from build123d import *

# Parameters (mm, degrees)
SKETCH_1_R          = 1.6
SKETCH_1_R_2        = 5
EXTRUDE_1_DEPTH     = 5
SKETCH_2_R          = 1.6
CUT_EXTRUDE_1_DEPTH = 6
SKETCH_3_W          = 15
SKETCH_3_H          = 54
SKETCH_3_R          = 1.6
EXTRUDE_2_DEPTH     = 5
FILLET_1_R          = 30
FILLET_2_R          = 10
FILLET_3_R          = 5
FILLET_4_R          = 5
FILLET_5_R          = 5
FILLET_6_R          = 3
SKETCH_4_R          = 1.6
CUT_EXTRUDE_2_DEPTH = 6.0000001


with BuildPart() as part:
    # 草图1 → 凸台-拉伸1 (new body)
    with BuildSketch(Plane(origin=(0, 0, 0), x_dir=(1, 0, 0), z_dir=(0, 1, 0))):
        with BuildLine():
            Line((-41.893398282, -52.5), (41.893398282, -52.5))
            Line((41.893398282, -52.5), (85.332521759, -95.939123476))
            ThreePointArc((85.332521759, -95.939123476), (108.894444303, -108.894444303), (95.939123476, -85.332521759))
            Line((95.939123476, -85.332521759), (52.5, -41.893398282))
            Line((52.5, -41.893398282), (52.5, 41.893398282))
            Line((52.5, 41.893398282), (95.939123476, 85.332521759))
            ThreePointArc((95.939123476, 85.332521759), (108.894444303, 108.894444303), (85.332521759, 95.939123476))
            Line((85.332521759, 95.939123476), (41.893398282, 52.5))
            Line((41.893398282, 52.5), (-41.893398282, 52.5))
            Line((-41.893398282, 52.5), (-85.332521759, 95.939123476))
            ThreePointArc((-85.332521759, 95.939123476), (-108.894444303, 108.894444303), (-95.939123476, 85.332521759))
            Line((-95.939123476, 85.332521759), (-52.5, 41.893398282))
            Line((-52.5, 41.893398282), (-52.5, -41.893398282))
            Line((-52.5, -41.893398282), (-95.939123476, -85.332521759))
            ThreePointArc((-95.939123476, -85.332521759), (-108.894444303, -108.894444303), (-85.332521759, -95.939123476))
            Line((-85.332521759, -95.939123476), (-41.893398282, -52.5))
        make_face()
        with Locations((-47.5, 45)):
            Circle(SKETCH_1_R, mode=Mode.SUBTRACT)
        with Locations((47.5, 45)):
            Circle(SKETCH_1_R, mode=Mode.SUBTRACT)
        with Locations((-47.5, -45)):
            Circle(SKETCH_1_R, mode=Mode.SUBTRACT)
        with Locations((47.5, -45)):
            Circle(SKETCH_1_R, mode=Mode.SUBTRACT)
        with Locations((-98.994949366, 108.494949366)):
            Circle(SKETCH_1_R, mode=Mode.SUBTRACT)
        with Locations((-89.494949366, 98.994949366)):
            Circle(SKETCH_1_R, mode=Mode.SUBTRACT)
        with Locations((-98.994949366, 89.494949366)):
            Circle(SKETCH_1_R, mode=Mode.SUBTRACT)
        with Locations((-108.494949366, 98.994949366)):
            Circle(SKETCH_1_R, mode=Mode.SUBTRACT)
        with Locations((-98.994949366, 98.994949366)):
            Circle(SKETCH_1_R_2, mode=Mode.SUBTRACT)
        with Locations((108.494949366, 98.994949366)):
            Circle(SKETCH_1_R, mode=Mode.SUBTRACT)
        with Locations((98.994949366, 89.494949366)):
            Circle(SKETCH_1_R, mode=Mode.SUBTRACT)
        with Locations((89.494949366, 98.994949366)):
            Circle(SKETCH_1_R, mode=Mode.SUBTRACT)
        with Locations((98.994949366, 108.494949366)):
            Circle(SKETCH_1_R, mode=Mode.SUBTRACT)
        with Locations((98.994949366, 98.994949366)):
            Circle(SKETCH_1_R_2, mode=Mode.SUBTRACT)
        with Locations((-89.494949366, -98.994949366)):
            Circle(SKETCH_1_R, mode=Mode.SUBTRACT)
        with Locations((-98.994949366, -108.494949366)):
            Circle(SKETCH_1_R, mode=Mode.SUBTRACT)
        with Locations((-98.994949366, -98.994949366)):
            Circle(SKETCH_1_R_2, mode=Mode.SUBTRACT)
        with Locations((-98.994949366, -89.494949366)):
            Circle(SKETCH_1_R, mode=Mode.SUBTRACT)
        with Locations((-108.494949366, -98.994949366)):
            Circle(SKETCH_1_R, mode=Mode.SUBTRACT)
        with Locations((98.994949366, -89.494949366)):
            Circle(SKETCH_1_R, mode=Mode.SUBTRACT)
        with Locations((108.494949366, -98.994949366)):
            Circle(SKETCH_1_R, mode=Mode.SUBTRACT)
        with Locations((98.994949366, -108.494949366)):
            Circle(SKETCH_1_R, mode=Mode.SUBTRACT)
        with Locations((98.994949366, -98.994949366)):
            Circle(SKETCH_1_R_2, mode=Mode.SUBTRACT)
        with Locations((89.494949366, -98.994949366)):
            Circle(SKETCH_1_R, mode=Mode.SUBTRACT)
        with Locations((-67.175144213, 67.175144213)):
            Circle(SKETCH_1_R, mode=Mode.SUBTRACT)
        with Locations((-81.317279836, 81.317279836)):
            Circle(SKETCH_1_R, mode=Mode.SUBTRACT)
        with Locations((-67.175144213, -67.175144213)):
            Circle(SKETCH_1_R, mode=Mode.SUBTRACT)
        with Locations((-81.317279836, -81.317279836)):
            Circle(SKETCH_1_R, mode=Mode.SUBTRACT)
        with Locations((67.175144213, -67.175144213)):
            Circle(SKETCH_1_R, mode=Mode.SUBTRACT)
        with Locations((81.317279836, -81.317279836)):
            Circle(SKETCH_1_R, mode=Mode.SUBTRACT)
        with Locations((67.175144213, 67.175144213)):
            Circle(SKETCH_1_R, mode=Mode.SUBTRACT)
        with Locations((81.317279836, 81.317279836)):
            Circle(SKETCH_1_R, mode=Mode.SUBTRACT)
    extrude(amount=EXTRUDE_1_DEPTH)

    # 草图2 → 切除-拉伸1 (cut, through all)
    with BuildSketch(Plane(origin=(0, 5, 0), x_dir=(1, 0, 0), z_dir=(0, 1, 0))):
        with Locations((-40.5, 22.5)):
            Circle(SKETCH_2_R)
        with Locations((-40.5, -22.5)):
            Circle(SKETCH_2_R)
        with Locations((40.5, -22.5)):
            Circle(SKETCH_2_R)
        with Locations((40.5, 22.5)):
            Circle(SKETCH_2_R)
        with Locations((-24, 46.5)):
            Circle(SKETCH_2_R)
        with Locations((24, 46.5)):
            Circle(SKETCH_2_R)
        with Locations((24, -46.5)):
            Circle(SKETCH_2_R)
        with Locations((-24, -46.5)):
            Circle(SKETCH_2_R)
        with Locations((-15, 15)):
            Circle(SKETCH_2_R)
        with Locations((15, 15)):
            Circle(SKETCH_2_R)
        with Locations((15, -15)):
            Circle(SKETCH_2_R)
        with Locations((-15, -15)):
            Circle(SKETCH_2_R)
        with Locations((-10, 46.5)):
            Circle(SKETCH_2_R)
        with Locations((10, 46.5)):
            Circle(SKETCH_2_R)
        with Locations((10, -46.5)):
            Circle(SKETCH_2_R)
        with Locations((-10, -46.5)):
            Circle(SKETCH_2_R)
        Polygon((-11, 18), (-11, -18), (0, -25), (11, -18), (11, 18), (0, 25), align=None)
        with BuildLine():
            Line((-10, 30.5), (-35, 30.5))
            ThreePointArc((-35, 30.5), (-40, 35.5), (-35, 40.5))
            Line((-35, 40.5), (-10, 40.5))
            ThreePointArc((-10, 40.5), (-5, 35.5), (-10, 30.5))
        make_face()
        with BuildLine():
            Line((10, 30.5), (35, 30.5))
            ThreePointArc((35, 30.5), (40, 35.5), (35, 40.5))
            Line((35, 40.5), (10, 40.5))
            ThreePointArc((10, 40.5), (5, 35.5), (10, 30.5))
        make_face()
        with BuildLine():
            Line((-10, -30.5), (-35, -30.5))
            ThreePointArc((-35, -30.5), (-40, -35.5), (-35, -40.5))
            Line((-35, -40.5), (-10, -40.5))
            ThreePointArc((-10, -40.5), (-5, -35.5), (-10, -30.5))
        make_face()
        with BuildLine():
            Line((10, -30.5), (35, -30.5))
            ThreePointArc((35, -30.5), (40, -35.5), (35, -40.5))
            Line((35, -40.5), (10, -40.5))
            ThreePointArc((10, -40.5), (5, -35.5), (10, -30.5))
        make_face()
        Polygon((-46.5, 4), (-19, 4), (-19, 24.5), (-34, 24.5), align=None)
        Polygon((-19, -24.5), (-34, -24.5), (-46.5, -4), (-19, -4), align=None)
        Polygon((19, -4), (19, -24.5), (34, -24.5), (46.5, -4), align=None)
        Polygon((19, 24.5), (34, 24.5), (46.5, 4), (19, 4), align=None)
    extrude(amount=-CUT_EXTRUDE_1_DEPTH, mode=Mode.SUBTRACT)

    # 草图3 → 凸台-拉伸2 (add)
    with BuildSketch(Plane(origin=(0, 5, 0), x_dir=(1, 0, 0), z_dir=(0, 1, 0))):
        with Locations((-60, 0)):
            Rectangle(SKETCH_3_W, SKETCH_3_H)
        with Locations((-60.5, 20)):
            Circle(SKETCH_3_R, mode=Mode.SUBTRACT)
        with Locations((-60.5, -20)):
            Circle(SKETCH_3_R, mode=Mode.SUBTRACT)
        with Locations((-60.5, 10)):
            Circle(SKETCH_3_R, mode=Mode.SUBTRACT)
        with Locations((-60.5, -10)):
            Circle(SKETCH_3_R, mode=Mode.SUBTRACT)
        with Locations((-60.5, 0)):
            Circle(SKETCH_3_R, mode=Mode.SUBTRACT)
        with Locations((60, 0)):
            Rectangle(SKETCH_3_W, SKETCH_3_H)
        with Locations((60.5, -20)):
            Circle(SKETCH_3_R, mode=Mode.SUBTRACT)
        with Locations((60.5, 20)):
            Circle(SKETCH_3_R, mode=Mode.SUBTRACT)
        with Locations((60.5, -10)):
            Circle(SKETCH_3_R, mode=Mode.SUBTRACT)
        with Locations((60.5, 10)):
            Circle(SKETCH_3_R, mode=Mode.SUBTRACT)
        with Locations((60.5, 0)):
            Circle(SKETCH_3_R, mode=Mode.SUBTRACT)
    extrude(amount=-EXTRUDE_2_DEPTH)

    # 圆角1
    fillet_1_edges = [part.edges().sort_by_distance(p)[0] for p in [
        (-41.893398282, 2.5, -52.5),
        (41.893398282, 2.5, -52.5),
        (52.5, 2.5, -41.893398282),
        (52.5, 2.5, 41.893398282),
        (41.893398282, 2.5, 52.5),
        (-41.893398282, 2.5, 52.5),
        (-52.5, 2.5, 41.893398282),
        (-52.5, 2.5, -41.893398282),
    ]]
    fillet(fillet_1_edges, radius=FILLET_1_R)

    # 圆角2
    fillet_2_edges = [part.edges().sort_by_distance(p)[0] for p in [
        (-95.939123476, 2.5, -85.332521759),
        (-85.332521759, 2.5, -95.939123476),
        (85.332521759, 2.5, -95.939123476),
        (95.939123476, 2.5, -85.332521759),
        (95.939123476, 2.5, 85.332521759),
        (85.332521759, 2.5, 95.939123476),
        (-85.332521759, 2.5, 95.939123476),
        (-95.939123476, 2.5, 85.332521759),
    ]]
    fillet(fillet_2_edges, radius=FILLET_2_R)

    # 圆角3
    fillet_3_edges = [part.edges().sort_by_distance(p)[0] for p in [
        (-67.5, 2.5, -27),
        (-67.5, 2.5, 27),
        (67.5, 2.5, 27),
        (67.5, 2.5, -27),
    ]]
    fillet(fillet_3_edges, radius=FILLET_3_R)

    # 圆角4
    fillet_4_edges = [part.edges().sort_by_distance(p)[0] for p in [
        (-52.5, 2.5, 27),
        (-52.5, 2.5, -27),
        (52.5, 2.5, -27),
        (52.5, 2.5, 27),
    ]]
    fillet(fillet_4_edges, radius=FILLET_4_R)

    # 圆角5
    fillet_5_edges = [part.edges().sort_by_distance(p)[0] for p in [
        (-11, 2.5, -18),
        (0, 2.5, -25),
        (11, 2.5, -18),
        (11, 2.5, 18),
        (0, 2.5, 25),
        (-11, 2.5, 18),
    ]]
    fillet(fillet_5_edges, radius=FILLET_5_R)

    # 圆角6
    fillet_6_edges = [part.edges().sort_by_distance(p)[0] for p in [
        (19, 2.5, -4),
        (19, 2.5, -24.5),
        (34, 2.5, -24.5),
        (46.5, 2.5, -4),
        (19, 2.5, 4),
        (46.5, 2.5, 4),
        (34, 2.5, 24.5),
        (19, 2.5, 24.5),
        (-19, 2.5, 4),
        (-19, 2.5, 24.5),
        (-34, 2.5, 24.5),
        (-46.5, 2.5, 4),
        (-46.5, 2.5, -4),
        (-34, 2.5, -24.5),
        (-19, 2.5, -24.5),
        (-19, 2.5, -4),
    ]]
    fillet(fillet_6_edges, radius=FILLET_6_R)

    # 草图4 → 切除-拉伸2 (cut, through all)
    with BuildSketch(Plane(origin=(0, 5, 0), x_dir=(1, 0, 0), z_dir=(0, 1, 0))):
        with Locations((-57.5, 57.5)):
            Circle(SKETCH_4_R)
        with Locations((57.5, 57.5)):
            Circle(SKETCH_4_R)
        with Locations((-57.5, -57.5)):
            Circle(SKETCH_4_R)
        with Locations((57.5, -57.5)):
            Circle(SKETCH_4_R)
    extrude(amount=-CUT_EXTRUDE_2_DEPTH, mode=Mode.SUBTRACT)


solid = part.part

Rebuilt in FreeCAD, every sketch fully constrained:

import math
import FreeCAD as App
import Part
import Sketcher
Q = App.Units.Quantity


def edges_at(feature, points):
    """Names of the edges that pass closest to the given points."""
    edges = feature.Shape.Edges
    near = lambda p: min(range(len(edges)), key=lambda i: edges[i].distToShape(Part.Vertex(*p))[0])
    return sorted({f"Edge{near(p) + 1}" for p in points})


def add_polygon(sketch, points):
    """Adds a closed chain of lines whose ends are joined by coincident constraints."""
    first, n = sketch.GeometryCount, len(points)
    for a, b in zip(points, points[1:] + points[:1]):
        sketch.addGeometry(Part.LineSegment(App.Vector(*a, 0), App.Vector(*b, 0)), False)
    for i in range(n):
        sketch.addConstraint(Sketcher.Constraint("Coincident", first + i, 2, first + (i + 1) % n, 1))

doc = App.newDocument("Part")
params = doc.addObject("Spreadsheet::Sheet", "Params")
for row, (alias, value) in enumerate([
    ("sketch1_diameter", "10 mm"),
    ("sketch1_radius", "14 mm"),
    ("sketch1_diameter2", "3.2 mm"),
    ("pad1_length", "5 mm"),
    ("sketch2_radius", "5 mm"),
    ("sketch2_diameter", "3.2 mm"),
    ("sketch2_width", "25 mm"),
    ("sketch2_width2", "15 mm"),
    ("sketch2_height", "36 mm"),
    ("sketch3_diameter", "3.2 mm"),
    ("sketch3_width", "15 mm"),
    ("sketch3_height", "54 mm"),
    ("pad2_length", "5 mm"),
    ("fillet_radius", "30 mm"),
    ("fillet2_radius", "10 mm"),
    ("fillet3_radius", "5 mm"),
    ("fillet4_radius", "5 mm"),
    ("fillet5_radius", "5 mm"),
    ("fillet6_radius", "3 mm"),
    ("sketch4_diameter", "3.2 mm"),
], start=1):
    params.set(f"A{row}", alias)
    params.set(f"B{row}", "=" + value)
    params.setAlias(f"B{row}", alias)

body = doc.addObject("PartDesign::Body", "Body")

# Sketch on XZ plane
sketch1 = body.newObject("Sketcher::SketchObject", "Sketch")
sketch1.AttachmentSupport = (doc.getObject("XZ_Plane"), [""])
sketch1.MapMode = "FlatFace"
sketch1.addGeometry([
    Part.LineSegment(App.Vector(-41.9, 52.5, 0), App.Vector(41.9, 52.5, 0)),  # 0
    Part.LineSegment(App.Vector(41.9, 52.5, 0), App.Vector(85.3, 95.9, 0)),  # 1
    Part.ArcOfCircle(Part.Circle(App.Vector(99, 99, 0), App.Vector(0, 0, 1), 14), math.radians(-103), math.radians(193)),  # 2
    Part.LineSegment(App.Vector(95.9, 85.3, 0), App.Vector(52.5, 41.9, 0)),  # 3
    Part.LineSegment(App.Vector(52.5, 41.9, 0), App.Vector(52.5, -41.9, 0)),  # 4
    Part.LineSegment(App.Vector(52.5, -41.9, 0), App.Vector(95.9, -85.3, 0)),  # 5
    Part.ArcOfCircle(Part.Circle(App.Vector(99, -99, 0), App.Vector(0, 0, 1), 14), math.radians(167), math.radians(463)),  # 6
    Part.LineSegment(App.Vector(85.3, -95.9, 0), App.Vector(41.9, -52.5, 0)),  # 7
    Part.LineSegment(App.Vector(41.9, -52.5, 0), App.Vector(-41.9, -52.5, 0)),  # 8
    Part.LineSegment(App.Vector(-41.9, -52.5, 0), App.Vector(-85.3, -95.9, 0)),  # 9
    Part.ArcOfCircle(Part.Circle(App.Vector(-99, -99, 0), App.Vector(0, 0, 1), 14), math.radians(77), math.radians(373)),  # 10
    Part.LineSegment(App.Vector(-95.9, -85.3, 0), App.Vector(-52.5, -41.9, 0)),  # 11
    Part.LineSegment(App.Vector(-52.5, -41.9, 0), App.Vector(-52.5, 41.9, 0)),  # 12
    Part.LineSegment(App.Vector(-52.5, 41.9, 0), App.Vector(-95.9, 85.3, 0)),  # 13
    Part.ArcOfCircle(Part.Circle(App.Vector(-99, 99, 0), App.Vector(0, 0, 1), 14), math.radians(-13), math.radians(283)),  # 14
    Part.LineSegment(App.Vector(-85.3, 95.9, 0), App.Vector(-41.9, 52.5, 0)),  # 15
    Part.Circle(App.Vector(-99, 108.5, 0), App.Vector(0, 0, 1), 1.6),  # 16
    Part.Circle(App.Vector(-108.5, 99, 0), App.Vector(0, 0, 1), 1.6),  # 17
    Part.Circle(App.Vector(-99, 99, 0), App.Vector(0, 0, 1), 5),  # 18
    Part.Circle(App.Vector(-89.5, 99, 0), App.Vector(0, 0, 1), 1.6),  # 19
    Part.Circle(App.Vector(-99, 89.5, 0), App.Vector(0, 0, 1), 1.6),  # 20
    Part.Circle(App.Vector(-81.3, 81.3, 0), App.Vector(0, 0, 1), 1.6),  # 21
    Part.Circle(App.Vector(-67.2, 67.2, 0), App.Vector(0, 0, 1), 1.6),  # 22
    Part.Circle(App.Vector(-47.5, 45, 0), App.Vector(0, 0, 1), 1.6),  # 23
    Part.Circle(App.Vector(89.5, 99, 0), App.Vector(0, 0, 1), 1.6),  # 24
    Part.Circle(App.Vector(99, 108.5, 0), App.Vector(0, 0, 1), 1.6),  # 25
    Part.Circle(App.Vector(99, 99, 0), App.Vector(0, 0, 1), 5),  # 26
    Part.Circle(App.Vector(108.5, 99, 0), App.Vector(0, 0, 1), 1.6),  # 27
    Part.Circle(App.Vector(99, 89.5, 0), App.Vector(0, 0, 1), 1.6),  # 28
    Part.Circle(App.Vector(81.3, 81.3, 0), App.Vector(0, 0, 1), 1.6),  # 29
    Part.Circle(App.Vector(67.2, 67.2, 0), App.Vector(0, 0, 1), 1.6),  # 30
    Part.Circle(App.Vector(47.5, 45, 0), App.Vector(0, 0, 1), 1.6),  # 31
    Part.Circle(App.Vector(-47.5, -45, 0), App.Vector(0, 0, 1), 1.6),  # 32
    Part.Circle(App.Vector(-67.2, -67.2, 0), App.Vector(0, 0, 1), 1.6),  # 33
    Part.Circle(App.Vector(-81.3, -81.3, 0), App.Vector(0, 0, 1), 1.6),  # 34
    Part.Circle(App.Vector(-99, -89.5, 0), App.Vector(0, 0, 1), 1.6),  # 35
    Part.Circle(App.Vector(-108.5, -99, 0), App.Vector(0, 0, 1), 1.6),  # 36
    Part.Circle(App.Vector(-99, -99, 0), App.Vector(0, 0, 1), 5),  # 37
    Part.Circle(App.Vector(-99, -108.5, 0), App.Vector(0, 0, 1), 1.6),  # 38
    Part.Circle(App.Vector(-89.5, -99, 0), App.Vector(0, 0, 1), 1.6),  # 39
    Part.Circle(App.Vector(47.5, -45, 0), App.Vector(0, 0, 1), 1.6),  # 40
    Part.Circle(App.Vector(67.2, -67.2, 0), App.Vector(0, 0, 1), 1.6),  # 41
    Part.Circle(App.Vector(81.3, -81.3, 0), App.Vector(0, 0, 1), 1.6),  # 42
    Part.Circle(App.Vector(99, -89.5, 0), App.Vector(0, 0, 1), 1.6),  # 43
    Part.Circle(App.Vector(89.5, -99, 0), App.Vector(0, 0, 1), 1.6),  # 44
    Part.Circle(App.Vector(99, -99, 0), App.Vector(0, 0, 1), 5),  # 45
    Part.Circle(App.Vector(108.5, -99, 0), App.Vector(0, 0, 1), 1.6),  # 46
    Part.Circle(App.Vector(99, -108.5, 0), App.Vector(0, 0, 1), 1.6),  # 47
], False)
sketch1.addConstraint([
    Sketcher.Constraint("Coincident", 0, 2, 1, 1),
    Sketcher.Constraint("Coincident", 1, 2, 2, 2),
    Sketcher.Constraint("Coincident", 2, 1, 3, 1),
    Sketcher.Constraint("Coincident", 3, 2, 4, 1),
    Sketcher.Constraint("Coincident", 4, 2, 5, 1),
    Sketcher.Constraint("Coincident", 5, 2, 6, 2),
    Sketcher.Constraint("Coincident", 6, 1, 7, 1),
    Sketcher.Constraint("Coincident", 7, 2, 8, 1),
    Sketcher.Constraint("Coincident", 8, 2, 9, 1),
    Sketcher.Constraint("Coincident", 9, 2, 10, 2),
    Sketcher.Constraint("Coincident", 10, 1, 11, 1),
    Sketcher.Constraint("Coincident", 11, 2, 12, 1),
    Sketcher.Constraint("Coincident", 12, 2, 13, 1),
    Sketcher.Constraint("Coincident", 13, 2, 14, 2),
    Sketcher.Constraint("Coincident", 14, 1, 15, 1),
    Sketcher.Constraint("Coincident", 15, 2, 0, 1),
    Sketcher.Constraint("Horizontal", 0),
    Sketcher.Constraint("Vertical", 4),
    Sketcher.Constraint("Horizontal", 8),
    Sketcher.Constraint("Vertical", 12),
    Sketcher.Constraint("Coincident", 18, 3, 14, 3),
    Sketcher.Constraint("Coincident", 26, 3, 2, 3),
    Sketcher.Constraint("Coincident", 37, 3, 10, 3),
    Sketcher.Constraint("Coincident", 45, 3, 6, 3),
    Sketcher.Constraint("Equal", 2, 6),
    Sketcher.Constraint("Equal", 6, 10),
    Sketcher.Constraint("Equal", 10, 14),
    Sketcher.Constraint("Equal", 16, 17),
    Sketcher.Constraint("Equal", 17, 19),
    Sketcher.Constraint("Equal", 19, 20),
    Sketcher.Constraint("Equal", 20, 21),
    Sketcher.Constraint("Equal", 21, 22),
    Sketcher.Constraint("Equal", 22, 23),
    Sketcher.Constraint("Equal", 23, 24),
    Sketcher.Constraint("Equal", 24, 25),
    Sketcher.Constraint("Equal", 18, 26),
    Sketcher.Constraint("Equal", 25, 27),
    Sketcher.Constraint("Equal", 27, 28),
    Sketcher.Constraint("Equal", 28, 29),
    Sketcher.Constraint("Equal", 29, 30),
    Sketcher.Constraint("Equal", 30, 31),
    Sketcher.Constraint("Equal", 31, 32),
    Sketcher.Constraint("Equal", 32, 33),
    Sketcher.Constraint("Equal", 33, 34),
    Sketcher.Constraint("Equal", 34, 35),
    Sketcher.Constraint("Equal", 35, 36),
    Sketcher.Constraint("Equal", 26, 37),
    Sketcher.Constraint("Equal", 36, 38),
    Sketcher.Constraint("Equal", 38, 39),
    Sketcher.Constraint("Equal", 39, 40),
    Sketcher.Constraint("Equal", 40, 41),
    Sketcher.Constraint("Equal", 41, 42),
    Sketcher.Constraint("Equal", 42, 43),
    Sketcher.Constraint("Equal", 43, 44),
    Sketcher.Constraint("Equal", 37, 45),
    Sketcher.Constraint("Equal", 44, 46),
    Sketcher.Constraint("Equal", 46, 47),
    Sketcher.Constraint("Symmetric", 2, 3, 10, 3, -1, 1),
    Sketcher.Constraint("Symmetric", 6, 3, 14, 3, -1, 1),
    Sketcher.Constraint("Symmetric", 31, 3, 32, 3, -1, 1),
    Sketcher.Constraint("Symmetric", 30, 3, 33, 3, -1, 1),
    Sketcher.Constraint("Symmetric", 29, 3, 34, 3, -1, 1),
    Sketcher.Constraint("Symmetric", 28, 3, 35, 3, -1, 1),
    Sketcher.Constraint("Symmetric", 27, 3, 36, 3, -1, 1),
    Sketcher.Constraint("Symmetric", 25, 3, 38, 3, -1, 1),
    Sketcher.Constraint("Symmetric", 24, 3, 39, 3, -1, 1),
    Sketcher.Constraint("Symmetric", 23, 3, 40, 3, -1, 1),
    Sketcher.Constraint("Symmetric", 22, 3, 41, 3, -1, 1),
    Sketcher.Constraint("Symmetric", 21, 3, 42, 3, -1, 1),
    Sketcher.Constraint("Symmetric", 20, 3, 43, 3, -1, 1),
    Sketcher.Constraint("Symmetric", 19, 3, 44, 3, -1, 1),
    Sketcher.Constraint("Symmetric", 17, 3, 46, 3, -1, 1),
    Sketcher.Constraint("Symmetric", 16, 3, 47, 3, -1, 1),
    Sketcher.Constraint("Symmetric", 0, 2, 8, 2, -1, 1),
    Sketcher.Constraint("Symmetric", 3, 2, 11, 2, -1, 1),
    Sketcher.Constraint("Symmetric", 6, 3, 10, 3, -2),
    Sketcher.Constraint("Symmetric", 19, 3, 24, 3, -2),
    Sketcher.Constraint("Symmetric", 16, 3, 25, 3, -2),
    Sketcher.Constraint("Symmetric", 17, 3, 27, 3, -2),
    Sketcher.Constraint("Symmetric", 20, 3, 28, 3, -2),
    Sketcher.Constraint("Symmetric", 21, 3, 29, 3, -2),
    Sketcher.Constraint("Symmetric", 22, 3, 30, 3, -2),
    Sketcher.Constraint("Symmetric", 23, 3, 31, 3, -2),
    Sketcher.Constraint("Parallel", 1, 3),
    Sketcher.Constraint("Perpendicular", 3, 5),
    Sketcher.Constraint("Parallel", 5, 7),
    Sketcher.Constraint("Perpendicular", 7, 9),
    Sketcher.Constraint("Parallel", 9, 11),
    Sketcher.Constraint("Perpendicular", 11, 13),
    Sketcher.Constraint("Parallel", 13, 15),
    Sketcher.Constraint("Horizontal", 14, 3, 17, 3),
    Sketcher.Constraint("Horizontal", 18, 3, 19, 3),
    Sketcher.Constraint("Horizontal", 6, 1, 9, 2),
    Sketcher.Constraint("Horizontal", 5, 2, 10, 1),
    Sketcher.Constraint("Horizontal", 4, 2, 11, 2),
    Sketcher.Constraint("Horizontal", 3, 2, 12, 2),
    Sketcher.Constraint("Horizontal", 1, 2, 14, 1),
    Sketcher.Constraint("Vertical", 14, 3, 16, 3),
    Sketcher.Constraint("Vertical", 18, 3, 20, 3),
    Sketcher.Constraint("Equal", 8, 4),
    Sketcher.Constraint("Equal", 1, 3),
    Sketcher.Constraint("Diameter", 18, Q("10 mm")),
    Sketcher.Constraint("Radius", 2, Q("14 mm")),
    Sketcher.Constraint("Diameter", 16, Q("3.2 mm")),
    Sketcher.Constraint("DistanceY", -1, 1, 23, 3, Q("45 mm")),
    Sketcher.Constraint("DistanceX", 17, 3, 19, 3, Q("19 mm")),
    Sketcher.Constraint("DistanceY", 20, 3, 16, 3, Q("19 mm")),
    Sketcher.Constraint("DistanceX", 32, 3, 31, 3, Q("95 mm")),
    Sketcher.Constraint("DistanceX", 31, 3, 3, 2, Q("5 mm")),
    Sketcher.Constraint("DistanceY", -1, 1, 0, 2, Q("52.5 mm")),
    Sketcher.Constraint("DistanceY", 14, 3, 16, 3, Q("9.5 mm")),
    Sketcher.Constraint("DistanceX", 17, 3, 14, 3, Q("9.5 mm")),
    Sketcher.Constraint("DistanceX", -1, 1, 0, 2, Q("41.893398 mm")),
    Sketcher.Constraint("DistanceY", 6, 3, 2, 3, Q("197.989899 mm")),
    Sketcher.Constraint("DistanceX", 21, 3, -1, 1, Q("81.31728 mm")),
    Sketcher.Constraint("DistanceY", -1, 1, 21, 3, Q("81.31728 mm")),
    Sketcher.Constraint("DistanceY", 33, 3, 22, 3, Q("134.350288 mm")),
    Sketcher.Constraint("DistanceX", 22, 3, -1, 1, Q("67.175144 mm")),
])
sketch1.setExpression("Constraints[101]", "Params.sketch1_diameter")
sketch1.setExpression("Constraints[102]", "Params.sketch1_radius")
sketch1.setExpression("Constraints[103]", "Params.sketch1_diameter2")
pad1 = body.newObject("PartDesign::Pad", "Pad")
pad1.Profile = sketch1
pad1.setExpression("Length", "Params.pad1_length")
pad1.Reversed = True

# Sketch on XZ plane
sketch2 = body.newObject("Sketcher::SketchObject", "Sketch001")
sketch2.AttachmentSupport = (doc.getObject("XZ_Plane"), [""])
sketch2.MapMode = "FlatFace"
sketch2.AttachmentOffset = App.Placement(App.Vector(0, 0, -5), App.Rotation())
sketch2.addGeometry(Part.Circle(App.Vector(-40.5, -22.5, 0), App.Vector(0, 0, 1), 1.6), False)  # 0
sketch2.addGeometry(Part.Circle(App.Vector(-40.5, 22.5, 0), App.Vector(0, 0, 1), 1.6), False)  # 1
sketch2.addGeometry(Part.Circle(App.Vector(40.5, 22.5, 0), App.Vector(0, 0, 1), 1.6), False)  # 2
sketch2.addGeometry(Part.Circle(App.Vector(40.5, -22.5, 0), App.Vector(0, 0, 1), 1.6), False)  # 3
sketch2.addGeometry(Part.Circle(App.Vector(-24, -46.5, 0), App.Vector(0, 0, 1), 1.6), False)  # 4
sketch2.addGeometry(Part.Circle(App.Vector(24, -46.5, 0), App.Vector(0, 0, 1), 1.6), False)  # 5
sketch2.addGeometry(Part.Circle(App.Vector(24, 46.5, 0), App.Vector(0, 0, 1), 1.6), False)  # 6
sketch2.addGeometry(Part.Circle(App.Vector(-24, 46.5, 0), App.Vector(0, 0, 1), 1.6), False)  # 7
sketch2.addGeometry(Part.Circle(App.Vector(-15, -15, 0), App.Vector(0, 0, 1), 1.6), False)  # 8
sketch2.addGeometry(Part.Circle(App.Vector(15, -15, 0), App.Vector(0, 0, 1), 1.6), False)  # 9
sketch2.addGeometry(Part.Circle(App.Vector(15, 15, 0), App.Vector(0, 0, 1), 1.6), False)  # 10
sketch2.addGeometry(Part.Circle(App.Vector(-15, 15, 0), App.Vector(0, 0, 1), 1.6), False)  # 11
sketch2.addGeometry(Part.Circle(App.Vector(-10, -46.5, 0), App.Vector(0, 0, 1), 1.6), False)  # 12
sketch2.addGeometry(Part.Circle(App.Vector(10, -46.5, 0), App.Vector(0, 0, 1), 1.6), False)  # 13
sketch2.addGeometry(Part.Circle(App.Vector(10, 46.5, 0), App.Vector(0, 0, 1), 1.6), False)  # 14
sketch2.addGeometry(Part.Circle(App.Vector(-10, 46.5, 0), App.Vector(0, 0, 1), 1.6), False)  # 15
add_polygon(sketch2, [(-11, -18), (-11, 18), (0, 25), (11, 18), (11, -18), (0, -25)])  # lines 16-21
sketch2.addGeometry(Part.LineSegment(App.Vector(-35, -30.5, 0), App.Vector(-10, -30.5, 0)), False)  # 22
sketch2.addGeometry(Part.ArcOfCircle(Part.Circle(App.Vector(-10, -35.5, 0), App.Vector(0, 0, 1), 5), math.radians(-90), math.radians(90)), False)  # 23
sketch2.addGeometry(Part.LineSegment(App.Vector(-10, -40.5, 0), App.Vector(-35, -40.5, 0)), False)  # 24
sketch2.addGeometry(Part.ArcOfCircle(Part.Circle(App.Vector(-35, -35.5, 0), App.Vector(0, 0, 1), 5), math.radians(90), math.radians(270)), False)  # 25
sketch2.addGeometry(Part.LineSegment(App.Vector(10, -30.5, 0), App.Vector(35, -30.5, 0)), False)  # 26
sketch2.addGeometry(Part.ArcOfCircle(Part.Circle(App.Vector(35, -35.5, 0), App.Vector(0, 0, 1), 5), math.radians(-90), math.radians(90)), False)  # 27
sketch2.addGeometry(Part.LineSegment(App.Vector(35, -40.5, 0), App.Vector(10, -40.5, 0)), False)  # 28
sketch2.addGeometry(Part.ArcOfCircle(Part.Circle(App.Vector(10, -35.5, 0), App.Vector(0, 0, 1), 5), math.radians(90), math.radians(270)), False)  # 29
sketch2.addGeometry(Part.LineSegment(App.Vector(-10, 30.5, 0), App.Vector(-35, 30.5, 0)), False)  # 30
sketch2.addGeometry(Part.ArcOfCircle(Part.Circle(App.Vector(-35, 35.5, 0), App.Vector(0, 0, 1), 5), math.radians(90), math.radians(270)), False)  # 31
sketch2.addGeometry(Part.LineSegment(App.Vector(-35, 40.5, 0), App.Vector(-10, 40.5, 0)), False)  # 32
sketch2.addGeometry(Part.ArcOfCircle(Part.Circle(App.Vector(-10, 35.5, 0), App.Vector(0, 0, 1), 5), math.radians(-90), math.radians(90)), False)  # 33
sketch2.addGeometry(Part.LineSegment(App.Vector(35, 30.5, 0), App.Vector(10, 30.5, 0)), False)  # 34
sketch2.addGeometry(Part.ArcOfCircle(Part.Circle(App.Vector(10, 35.5, 0), App.Vector(0, 0, 1), 5), math.radians(90), math.radians(270)), False)  # 35
sketch2.addGeometry(Part.LineSegment(App.Vector(10, 40.5, 0), App.Vector(35, 40.5, 0)), False)  # 36
sketch2.addGeometry(Part.ArcOfCircle(Part.Circle(App.Vector(35, 35.5, 0), App.Vector(0, 0, 1), 5), math.radians(-90), math.radians(90)), False)  # 37
add_polygon(sketch2, [(-46.5, -4), (-19, -4), (-19, -24.5), (-34, -24.5)])  # lines 38-41
add_polygon(sketch2, [(-34, 24.5), (-19, 24.5), (-19, 4), (-46.5, 4)])  # lines 42-45
add_polygon(sketch2, [(19, 4), (19, 24.5), (34, 24.5), (46.5, 4)])  # lines 46-49
add_polygon(sketch2, [(34, -24.5), (19, -24.5), (19, -4), (46.5, -4)])  # lines 50-53
sketch2.addConstraint([
    Sketcher.Constraint("Tangent", 22, 2, 23, 2),
    Sketcher.Constraint("Tangent", 23, 1, 24, 1),
    Sketcher.Constraint("Tangent", 24, 2, 25, 2),
    Sketcher.Constraint("Tangent", 25, 1, 22, 1),
    Sketcher.Constraint("Tangent", 26, 2, 27, 2),
    Sketcher.Constraint("Tangent", 27, 1, 28, 1),
    Sketcher.Constraint("Tangent", 28, 2, 29, 2),
    Sketcher.Constraint("Tangent", 29, 1, 26, 1),
    Sketcher.Constraint("Tangent", 30, 2, 31, 2),
    Sketcher.Constraint("Tangent", 31, 1, 32, 1),
    Sketcher.Constraint("Tangent", 32, 2, 33, 2),
    Sketcher.Constraint("Tangent", 33, 1, 30, 1),
    Sketcher.Constraint("Tangent", 34, 2, 35, 2),
    Sketcher.Constraint("Tangent", 35, 1, 36, 1),
    Sketcher.Constraint("Tangent", 36, 2, 37, 2),
    Sketcher.Constraint("Tangent", 37, 1, 34, 1),
    Sketcher.Constraint("Vertical", 16),
    Sketcher.Constraint("Vertical", 19),
    Sketcher.Constraint("Horizontal", 22),
    Sketcher.Constraint("Horizontal", 24),
    Sketcher.Constraint("Horizontal", 26),
    Sketcher.Constraint("Horizontal", 28),
    Sketcher.Constraint("Horizontal", 30),
    Sketcher.Constraint("Horizontal", 32),
    Sketcher.Constraint("Horizontal", 34),
    Sketcher.Constraint("Horizontal", 36),
    Sketcher.Constraint("Horizontal", 38),
    Sketcher.Constraint("Vertical", 39),
    Sketcher.Constraint("Horizontal", 40),
    Sketcher.Constraint("Horizontal", 42),
    Sketcher.Constraint("Vertical", 43),
    Sketcher.Constraint("Horizontal", 44),
    Sketcher.Constraint("Vertical", 46),
    Sketcher.Constraint("Horizontal", 47),
    Sketcher.Constraint("Horizontal", 49),
    Sketcher.Constraint("Horizontal", 50),
    Sketcher.Constraint("Vertical", 51),
    Sketcher.Constraint("Horizontal", 52),
    Sketcher.Constraint("Equal", 0, 1),
    Sketcher.Constraint("Equal", 1, 2),
    Sketcher.Constraint("Equal", 2, 3),
    Sketcher.Constraint("Equal", 3, 4),
    Sketcher.Constraint("Equal", 4, 5),
    Sketcher.Constraint("Equal", 5, 6),
    Sketcher.Constraint("Equal", 6, 7),
    Sketcher.Constraint("Equal", 7, 8),
    Sketcher.Constraint("Equal", 8, 9),
    Sketcher.Constraint("Equal", 9, 10),
    Sketcher.Constraint("Equal", 10, 11),
    Sketcher.Constraint("Equal", 11, 12),
    Sketcher.Constraint("Equal", 12, 13),
    Sketcher.Constraint("Equal", 13, 14),
    Sketcher.Constraint("Equal", 14, 15),
    Sketcher.Constraint("Equal", 25, 27),
    Sketcher.Constraint("Equal", 29, 31),
    Sketcher.Constraint("Equal", 33, 35),
    Sketcher.Constraint("Symmetric", 0, 3, 2, 3, -1, 1),
    Sketcher.Constraint("Symmetric", 1, 3, 3, 3, -1, 1),
    Sketcher.Constraint("Symmetric", 4, 3, 6, 3, -1, 1),
    Sketcher.Constraint("Symmetric", 5, 3, 7, 3, -1, 1),
    Sketcher.Constraint("Symmetric", 8, 3, 10, 3, -1, 1),
    Sketcher.Constraint("Symmetric", 9, 3, 11, 3, -1, 1),
    Sketcher.Constraint("Symmetric", 12, 3, 14, 3, -1, 1),
    Sketcher.Constraint("Symmetric", 13, 3, 15, 3, -1, 1),
    Sketcher.Constraint("Symmetric", 27, 3, 31, 3, -1, 1),
    Sketcher.Constraint("Symmetric", 23, 3, 35, 3, -1, 1),
    Sketcher.Constraint("Symmetric", 16, 2, 19, 2, -1, 1),
    Sketcher.Constraint("Symmetric", 17, 2, 20, 2, -1, 1),
    Sketcher.Constraint("Symmetric", 39, 2, 46, 2, -1, 1),
    Sketcher.Constraint("Symmetric", 41, 2, 48, 2, -1, 1),
    Sketcher.Constraint("Symmetric", 42, 2, 50, 2, -1, 1),
    Sketcher.Constraint("Symmetric", 44, 2, 52, 2, -1, 1),
    Sketcher.Constraint("Symmetric", 1, 3, 2, 3, -2),
    Sketcher.Constraint("Symmetric", 4, 3, 5, 3, -2),
    Sketcher.Constraint("Symmetric", 8, 3, 9, 3, -2),
    Sketcher.Constraint("Symmetric", 12, 3, 13, 3, -2),
    Sketcher.Constraint("Symmetric", 25, 3, 27, 3, -2),
    Sketcher.Constraint("Symmetric", 42, 2, 46, 2, -2),
    Sketcher.Constraint("Symmetric", 44, 2, 48, 2, -2),
    Sketcher.Constraint("PointOnObject", 17, 2, -2),
    Sketcher.Constraint("Parallel", 18, 21),
    Sketcher.Constraint("Parallel", 41, 48),
    Sketcher.Constraint("Parallel", 45, 53),
    Sketcher.Constraint("Horizontal", 5, 3, 12, 3),
    Sketcher.Constraint("Horizontal", 16, 2, 18, 2),
    Sketcher.Constraint("Vertical", 15, 3, 23, 3),
    Sketcher.Constraint("Vertical", 14, 3, 29, 3),
    Sketcher.Constraint("Vertical", 23, 3, 33, 3),
    Sketcher.Constraint("Vertical", 27, 3, 37, 3),
    Sketcher.Constraint("Vertical", 40, 2, 45, 2),
    Sketcher.Constraint("Radius", 23, Q("5 mm")),
    Sketcher.Constraint("Diameter", 0, Q("3.2 mm")),
    Sketcher.Constraint("DistanceX", 22, 1, 22, 2, Q("25 mm")),
    Sketcher.Constraint("DistanceX", 40, 2, 40, 1, Q("15 mm")),
    Sketcher.Constraint("DistanceY", 16, 1, 16, 2, Q("36 mm")),
    Sketcher.Constraint("DistanceX", 38, 1, 38, 2, Q("27.5 mm")),
    Sketcher.Constraint("DistanceY", 39, 2, 39, 1, Q("20.5 mm")),
    Sketcher.Constraint("DistanceX", 4, 3, -1, 1, Q("24 mm")),
    Sketcher.Constraint("DistanceX", 8, 3, -1, 1, Q("15 mm")),
    Sketcher.Constraint("DistanceY", 8, 3, -1, 1, Q("15 mm")),
    Sketcher.Constraint("DistanceX", 12, 3, -1, 1, Q("10 mm")),
    Sketcher.Constraint("DistanceX", 16, 2, -1, 1, Q("11 mm")),
    Sketcher.Constraint("DistanceY", -1, 1, 17, 2, Q("25 mm")),
    Sketcher.Constraint("DistanceX", 38, 2, -1, 1, Q("19 mm")),
    Sketcher.Constraint("DistanceY", 38, 2, -1, 1, Q("4 mm")),
    Sketcher.Constraint("DistanceX", 0, 3, -1, 1, Q("40.5 mm")),
    Sketcher.Constraint("DistanceY", 0, 3, -1, 1, Q("22.5 mm")),
    Sketcher.Constraint("DistanceY", 4, 3, -1, 1, Q("46.5 mm")),
    Sketcher.Constraint("DistanceY", 23, 3, -1, 1, Q("35.5 mm")),
])
sketch2.setExpression("Constraints[112]", "Params.sketch2_radius")
sketch2.setExpression("Constraints[113]", "Params.sketch2_diameter")
sketch2.setExpression("Constraints[114]", "Params.sketch2_width")
sketch2.setExpression("Constraints[115]", "Params.sketch2_width2")
sketch2.setExpression("Constraints[116]", "Params.sketch2_height")
pocket1 = body.newObject("PartDesign::Pocket", "Pocket")
pocket1.Profile = sketch2
pocket1.Type = "ThroughAll"
pocket1.Reversed = True

# Sketch on XZ plane
sketch3 = body.newObject("Sketcher::SketchObject", "Sketch002")
sketch3.AttachmentSupport = (doc.getObject("XZ_Plane"), [""])
sketch3.MapMode = "FlatFace"
sketch3.AttachmentOffset = App.Placement(App.Vector(0, 0, -5), App.Rotation())
add_polygon(sketch3, [(-67.5, -27), (-67.5, 27), (-52.5, 27), (-52.5, -27)])  # lines 0-3
sketch3.addGeometry(Part.Circle(App.Vector(-60.5, 20, 0), App.Vector(0, 0, 1), 1.6), False)  # 4
sketch3.addGeometry(Part.Circle(App.Vector(-60.5, 10, 0), App.Vector(0, 0, 1), 1.6), False)  # 5
sketch3.addGeometry(Part.Circle(App.Vector(-60.5, 0, 0), App.Vector(0, 0, 1), 1.6), False)  # 6
sketch3.addGeometry(Part.Circle(App.Vector(-60.5, -10, 0), App.Vector(0, 0, 1), 1.6), False)  # 7
sketch3.addGeometry(Part.Circle(App.Vector(-60.5, -20, 0), App.Vector(0, 0, 1), 1.6), False)  # 8
add_polygon(sketch3, [(52.5, -27), (52.5, 27), (67.5, 27), (67.5, -27)])  # lines 9-12
sketch3.addGeometry(Part.Circle(App.Vector(60.5, 20, 0), App.Vector(0, 0, 1), 1.6), False)  # 13
sketch3.addGeometry(Part.Circle(App.Vector(60.5, 10, 0), App.Vector(0, 0, 1), 1.6), False)  # 14
sketch3.addGeometry(Part.Circle(App.Vector(60.5, 0, 0), App.Vector(0, 0, 1), 1.6), False)  # 15
sketch3.addGeometry(Part.Circle(App.Vector(60.5, -10, 0), App.Vector(0, 0, 1), 1.6), False)  # 16
sketch3.addGeometry(Part.Circle(App.Vector(60.5, -20, 0), App.Vector(0, 0, 1), 1.6), False)  # 17
sketch3.addConstraint([
    Sketcher.Constraint("Vertical", 0),
    Sketcher.Constraint("Horizontal", 1),
    Sketcher.Constraint("Vertical", 2),
    Sketcher.Constraint("Horizontal", 3),
    Sketcher.Constraint("Vertical", 9),
    Sketcher.Constraint("Horizontal", 10),
    Sketcher.Constraint("Vertical", 11),
    Sketcher.Constraint("Horizontal", 12),
    Sketcher.Constraint("Equal", 4, 5),
    Sketcher.Constraint("Equal", 5, 6),
    Sketcher.Constraint("Equal", 6, 7),
    Sketcher.Constraint("Equal", 7, 8),
    Sketcher.Constraint("Equal", 8, 13),
    Sketcher.Constraint("Equal", 13, 14),
    Sketcher.Constraint("Equal", 14, 15),
    Sketcher.Constraint("Equal", 15, 16),
    Sketcher.Constraint("Equal", 16, 17),
    Sketcher.Constraint("Symmetric", 8, 3, 13, 3, -1, 1),
    Sketcher.Constraint("Symmetric", 7, 3, 14, 3, -1, 1),
    Sketcher.Constraint("Symmetric", 6, 3, 15, 3, -1, 1),
    Sketcher.Constraint("Symmetric", 5, 3, 16, 3, -1, 1),
    Sketcher.Constraint("Symmetric", 4, 3, 17, 3, -1, 1),
    Sketcher.Constraint("Symmetric", 2, 2, 9, 2, -1, 1),
    Sketcher.Constraint("Symmetric", 0, 2, 11, 2, -1, 1),
    Sketcher.Constraint("Symmetric", 4, 3, 13, 3, -2),
    Sketcher.Constraint("Symmetric", 5, 3, 14, 3, -2),
    Sketcher.Constraint("PointOnObject", 6, 3, -1),
    Sketcher.Constraint("Horizontal", 1, 2, 9, 2),
    Sketcher.Constraint("Vertical", 4, 3, 5, 3),
    Sketcher.Constraint("Vertical", 5, 3, 6, 3),
    Sketcher.Constraint("Diameter", 4, Q("3.2 mm")),
    Sketcher.Constraint("DistanceX", 1, 1, 1, 2, Q("15 mm")),
    Sketcher.Constraint("DistanceY", 0, 1, 0, 2, Q("54 mm")),
    Sketcher.Constraint("DistanceY", -1, 1, 4, 3, Q("20 mm")),
    Sketcher.Constraint("DistanceY", -1, 1, 5, 3, Q("10 mm")),
    Sketcher.Constraint("DistanceX", 4, 3, 13, 3, Q("121 mm")),
    Sketcher.Constraint("DistanceX", 0, 2, 4, 3, Q("7 mm")),
])
sketch3.setExpression("Constraints[38]", "Params.sketch3_diameter")
sketch3.setExpression("Constraints[39]", "Params.sketch3_width")
sketch3.setExpression("Constraints[40]", "Params.sketch3_height")
pad2 = body.newObject("PartDesign::Pad", "Pad001")
pad2.Profile = sketch3
pad2.setExpression("Length", "Params.pad2_length")
doc.recompute()

fillet = body.newObject("PartDesign::Fillet", "Fillet")
fillet.Base = (pad2, edges_at(pad2, [
    (-41.893, 2.5, -52.5),
    (41.893, 2.5, -52.5),
    (52.5, 2.5, -41.893),
    (52.5, 2.5, 41.893),
    (41.893, 2.5, 52.5),
    (-41.893, 2.5, 52.5),
    (-52.5, 2.5, 41.893),
    (-52.5, 2.5, -41.893),
]))
fillet.setExpression("Radius", "Params.fillet_radius")
doc.recompute()

fillet2 = body.newObject("PartDesign::Fillet", "Fillet001")
fillet2.Base = (fillet, edges_at(fillet, [
    (-95.939, 2.5, -85.333),
    (-85.333, 2.5, -95.939),
    (85.333, 2.5, -95.939),
    (95.939, 2.5, -85.333),
    (95.939, 2.5, 85.333),
    (85.333, 2.5, 95.939),
    (-85.333, 2.5, 95.939),
    (-95.939, 2.5, 85.333),
]))
fillet2.setExpression("Radius", "Params.fillet2_radius")
doc.recompute()

fillet3 = body.newObject("PartDesign::Fillet", "Fillet002")
fillet3.Base = (fillet2, edges_at(fillet2, [
    (-67.5, 2.5, -27),
    (-67.5, 2.5, 27),
    (67.5, 2.5, 27),
    (67.5, 2.5, -27),
]))
fillet3.setExpression("Radius", "Params.fillet3_radius")
doc.recompute()

fillet4 = body.newObject("PartDesign::Fillet", "Fillet003")
fillet4.Base = (fillet3, edges_at(fillet3, [
    (-52.5, 2.5, 27),
    (-52.5, 2.5, -27),
    (52.5, 2.5, -27),
    (52.5, 2.5, 27),
]))
fillet4.setExpression("Radius", "Params.fillet4_radius")
doc.recompute()

fillet5 = body.newObject("PartDesign::Fillet", "Fillet004")
fillet5.Base = (fillet4, edges_at(fillet4, [
    (-11, 2.5, -18),
    (0, 2.5, -25),
    (11, 2.5, -18),
    (11, 2.5, 18),
    (0, 2.5, 25),
    (-11, 2.5, 18),
]))
fillet5.setExpression("Radius", "Params.fillet5_radius")
doc.recompute()

fillet6 = body.newObject("PartDesign::Fillet", "Fillet005")
fillet6.Base = (fillet5, edges_at(fillet5, [
    (19, 2.5, -4),
    (19, 2.5, -24.5),
    (34, 2.5, -24.5),
    (46.5, 2.5, -4),
    (19, 2.5, 4),
    (46.5, 2.5, 4),
    (34, 2.5, 24.5),
    (19, 2.5, 24.5),
    (-19, 2.5, 4),
    (-19, 2.5, 24.5),
    (-34, 2.5, 24.5),
    (-46.5, 2.5, 4),
    (-46.5, 2.5, -4),
    (-34, 2.5, -24.5),
    (-19, 2.5, -24.5),
    (-19, 2.5, -4),
]))
fillet6.setExpression("Radius", "Params.fillet6_radius")

# Sketch on XZ plane
sketch4 = body.newObject("Sketcher::SketchObject", "Sketch003")
sketch4.AttachmentSupport = (doc.getObject("XZ_Plane"), [""])
sketch4.MapMode = "FlatFace"
sketch4.AttachmentOffset = App.Placement(App.Vector(0, 0, -5), App.Rotation())
sketch4.addGeometry([
    Part.Circle(App.Vector(-57.5, -57.5, 0), App.Vector(0, 0, 1), 1.6),
    Part.Circle(App.Vector(57.5, -57.5, 0), App.Vector(0, 0, 1), 1.6),
    Part.Circle(App.Vector(-57.5, 57.5, 0), App.Vector(0, 0, 1), 1.6),
    Part.Circle(App.Vector(57.5, 57.5, 0), App.Vector(0, 0, 1), 1.6),
], False)
sketch4.addConstraint([
    Sketcher.Constraint("Equal", 0, 1),
    Sketcher.Constraint("Equal", 1, 2),
    Sketcher.Constraint("Equal", 2, 3),
    Sketcher.Constraint("Symmetric", 1, 3, 2, 3, -1, 1),
    Sketcher.Constraint("Symmetric", 0, 3, 3, 3, -1, 1),
    Sketcher.Constraint("Symmetric", 0, 3, 1, 3, -2),
    Sketcher.Constraint("Diameter", 0, Q("3.2 mm")),
    Sketcher.Constraint("DistanceX", 0, 3, 1, 3, Q("115 mm")),
    Sketcher.Constraint("DistanceY", 0, 3, 2, 3, Q("115 mm")),
])
sketch4.setExpression("Constraints[6]", "Params.sketch4_diameter")
pocket2 = body.newObject("PartDesign::Pocket", "Pocket001")
pocket2.Profile = sketch4
pocket2.Type = "ThroughAll"
pocket2.Reversed = True

doc.recompute()
